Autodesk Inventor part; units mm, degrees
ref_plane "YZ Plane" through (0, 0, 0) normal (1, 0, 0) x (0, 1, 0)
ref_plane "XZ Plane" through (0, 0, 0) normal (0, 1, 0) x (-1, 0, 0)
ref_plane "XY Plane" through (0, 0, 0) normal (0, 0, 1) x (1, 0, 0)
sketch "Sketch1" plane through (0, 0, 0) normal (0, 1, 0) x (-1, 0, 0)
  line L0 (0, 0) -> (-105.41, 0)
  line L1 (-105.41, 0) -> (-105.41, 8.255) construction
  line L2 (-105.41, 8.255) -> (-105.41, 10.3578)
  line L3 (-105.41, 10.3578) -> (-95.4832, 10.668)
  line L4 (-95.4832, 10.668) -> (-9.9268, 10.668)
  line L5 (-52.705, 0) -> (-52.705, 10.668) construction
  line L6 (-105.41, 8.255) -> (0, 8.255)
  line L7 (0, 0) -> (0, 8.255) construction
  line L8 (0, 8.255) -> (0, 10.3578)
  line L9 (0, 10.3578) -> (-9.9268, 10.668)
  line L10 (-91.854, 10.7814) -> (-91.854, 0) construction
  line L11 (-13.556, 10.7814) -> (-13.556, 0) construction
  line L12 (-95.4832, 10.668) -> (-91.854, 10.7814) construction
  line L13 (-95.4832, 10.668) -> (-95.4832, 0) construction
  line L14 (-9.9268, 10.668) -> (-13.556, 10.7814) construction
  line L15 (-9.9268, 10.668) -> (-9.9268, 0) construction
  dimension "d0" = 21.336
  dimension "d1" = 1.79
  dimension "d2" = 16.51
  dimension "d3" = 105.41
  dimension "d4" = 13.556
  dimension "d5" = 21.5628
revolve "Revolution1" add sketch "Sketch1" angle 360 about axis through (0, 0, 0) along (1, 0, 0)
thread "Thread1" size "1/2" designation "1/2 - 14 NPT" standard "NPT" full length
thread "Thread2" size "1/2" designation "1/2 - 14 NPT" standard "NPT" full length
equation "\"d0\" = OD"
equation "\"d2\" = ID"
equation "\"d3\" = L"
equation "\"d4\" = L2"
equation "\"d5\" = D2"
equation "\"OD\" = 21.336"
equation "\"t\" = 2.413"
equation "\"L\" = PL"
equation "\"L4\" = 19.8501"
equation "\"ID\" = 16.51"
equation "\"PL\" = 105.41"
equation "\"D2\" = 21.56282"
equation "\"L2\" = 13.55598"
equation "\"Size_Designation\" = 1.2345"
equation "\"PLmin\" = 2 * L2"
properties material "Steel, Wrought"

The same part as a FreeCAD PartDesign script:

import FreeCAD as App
import Part
import Sketcher
Q = App.Units.Quantity


def add_polygon(sketch, points):
    """Adds a closed chain of lines whose ends are joined by coincident constraints."""
    first, n = sketch.GeometryCount, len(points)
    for a, b in zip(points, points[1:] + points[:1]):
        sketch.addGeometry(Part.LineSegment(App.Vector(*a, 0), App.Vector(*b, 0)), False)
    for i in range(n):
        sketch.addConstraint(Sketcher.Constraint("Coincident", first + i, 2, first + (i + 1) % n, 1))

doc = App.newDocument("Part")
body = doc.addObject("PartDesign::Body", "Body")

sketch1 = doc.addObject("Sketcher::SketchObject", "Sketch")
body.addObject(sketch1)
sketch1.AttachmentSupport = (doc.XZ_Plane, [""])
sketch1.MapMode = "FlatFace"
add_polygon(sketch1, [(105.4, 10.4), (105.4, 8.3), (0, 8.3), (0, 10.4), (9.9, 10.7), (95.5, 10.7)])
sketch1.addConstraint([
    Sketcher.Constraint("Vertical", 0),
    Sketcher.Constraint("Horizontal", 1),
    Sketcher.Constraint("Vertical", 2),
    Sketcher.Constraint("Horizontal", 4),
    Sketcher.Constraint("PointOnObject", 1, 2, -2),
    Sketcher.Constraint("Horizontal", 2, 2, 5, 2),
    Sketcher.Constraint("Equal", 3, 5),
    Sketcher.Constraint("DistanceX", 1, 2, 1, 1, Q("4.15 in")),
    Sketcher.Constraint("Angle", 3, Q("1.7898 deg")),
    Sketcher.Constraint("DistanceY", -1, 1, 3, 2, Q("0.42 in")),
    Sketcher.Constraint("Distance", 3, Q("0.391 in")),
    Sketcher.Constraint("DistanceY", -1, 1, 0, 2, Q("0.325 in")),
])
revolution = doc.addObject("PartDesign::Revolution", "Revolution")
body.addObject(revolution)
revolution.Profile = sketch1
revolution.ReferenceAxis = (sketch1, ["H_Axis"])
revolution.Angle = 360

doc.recompute()
